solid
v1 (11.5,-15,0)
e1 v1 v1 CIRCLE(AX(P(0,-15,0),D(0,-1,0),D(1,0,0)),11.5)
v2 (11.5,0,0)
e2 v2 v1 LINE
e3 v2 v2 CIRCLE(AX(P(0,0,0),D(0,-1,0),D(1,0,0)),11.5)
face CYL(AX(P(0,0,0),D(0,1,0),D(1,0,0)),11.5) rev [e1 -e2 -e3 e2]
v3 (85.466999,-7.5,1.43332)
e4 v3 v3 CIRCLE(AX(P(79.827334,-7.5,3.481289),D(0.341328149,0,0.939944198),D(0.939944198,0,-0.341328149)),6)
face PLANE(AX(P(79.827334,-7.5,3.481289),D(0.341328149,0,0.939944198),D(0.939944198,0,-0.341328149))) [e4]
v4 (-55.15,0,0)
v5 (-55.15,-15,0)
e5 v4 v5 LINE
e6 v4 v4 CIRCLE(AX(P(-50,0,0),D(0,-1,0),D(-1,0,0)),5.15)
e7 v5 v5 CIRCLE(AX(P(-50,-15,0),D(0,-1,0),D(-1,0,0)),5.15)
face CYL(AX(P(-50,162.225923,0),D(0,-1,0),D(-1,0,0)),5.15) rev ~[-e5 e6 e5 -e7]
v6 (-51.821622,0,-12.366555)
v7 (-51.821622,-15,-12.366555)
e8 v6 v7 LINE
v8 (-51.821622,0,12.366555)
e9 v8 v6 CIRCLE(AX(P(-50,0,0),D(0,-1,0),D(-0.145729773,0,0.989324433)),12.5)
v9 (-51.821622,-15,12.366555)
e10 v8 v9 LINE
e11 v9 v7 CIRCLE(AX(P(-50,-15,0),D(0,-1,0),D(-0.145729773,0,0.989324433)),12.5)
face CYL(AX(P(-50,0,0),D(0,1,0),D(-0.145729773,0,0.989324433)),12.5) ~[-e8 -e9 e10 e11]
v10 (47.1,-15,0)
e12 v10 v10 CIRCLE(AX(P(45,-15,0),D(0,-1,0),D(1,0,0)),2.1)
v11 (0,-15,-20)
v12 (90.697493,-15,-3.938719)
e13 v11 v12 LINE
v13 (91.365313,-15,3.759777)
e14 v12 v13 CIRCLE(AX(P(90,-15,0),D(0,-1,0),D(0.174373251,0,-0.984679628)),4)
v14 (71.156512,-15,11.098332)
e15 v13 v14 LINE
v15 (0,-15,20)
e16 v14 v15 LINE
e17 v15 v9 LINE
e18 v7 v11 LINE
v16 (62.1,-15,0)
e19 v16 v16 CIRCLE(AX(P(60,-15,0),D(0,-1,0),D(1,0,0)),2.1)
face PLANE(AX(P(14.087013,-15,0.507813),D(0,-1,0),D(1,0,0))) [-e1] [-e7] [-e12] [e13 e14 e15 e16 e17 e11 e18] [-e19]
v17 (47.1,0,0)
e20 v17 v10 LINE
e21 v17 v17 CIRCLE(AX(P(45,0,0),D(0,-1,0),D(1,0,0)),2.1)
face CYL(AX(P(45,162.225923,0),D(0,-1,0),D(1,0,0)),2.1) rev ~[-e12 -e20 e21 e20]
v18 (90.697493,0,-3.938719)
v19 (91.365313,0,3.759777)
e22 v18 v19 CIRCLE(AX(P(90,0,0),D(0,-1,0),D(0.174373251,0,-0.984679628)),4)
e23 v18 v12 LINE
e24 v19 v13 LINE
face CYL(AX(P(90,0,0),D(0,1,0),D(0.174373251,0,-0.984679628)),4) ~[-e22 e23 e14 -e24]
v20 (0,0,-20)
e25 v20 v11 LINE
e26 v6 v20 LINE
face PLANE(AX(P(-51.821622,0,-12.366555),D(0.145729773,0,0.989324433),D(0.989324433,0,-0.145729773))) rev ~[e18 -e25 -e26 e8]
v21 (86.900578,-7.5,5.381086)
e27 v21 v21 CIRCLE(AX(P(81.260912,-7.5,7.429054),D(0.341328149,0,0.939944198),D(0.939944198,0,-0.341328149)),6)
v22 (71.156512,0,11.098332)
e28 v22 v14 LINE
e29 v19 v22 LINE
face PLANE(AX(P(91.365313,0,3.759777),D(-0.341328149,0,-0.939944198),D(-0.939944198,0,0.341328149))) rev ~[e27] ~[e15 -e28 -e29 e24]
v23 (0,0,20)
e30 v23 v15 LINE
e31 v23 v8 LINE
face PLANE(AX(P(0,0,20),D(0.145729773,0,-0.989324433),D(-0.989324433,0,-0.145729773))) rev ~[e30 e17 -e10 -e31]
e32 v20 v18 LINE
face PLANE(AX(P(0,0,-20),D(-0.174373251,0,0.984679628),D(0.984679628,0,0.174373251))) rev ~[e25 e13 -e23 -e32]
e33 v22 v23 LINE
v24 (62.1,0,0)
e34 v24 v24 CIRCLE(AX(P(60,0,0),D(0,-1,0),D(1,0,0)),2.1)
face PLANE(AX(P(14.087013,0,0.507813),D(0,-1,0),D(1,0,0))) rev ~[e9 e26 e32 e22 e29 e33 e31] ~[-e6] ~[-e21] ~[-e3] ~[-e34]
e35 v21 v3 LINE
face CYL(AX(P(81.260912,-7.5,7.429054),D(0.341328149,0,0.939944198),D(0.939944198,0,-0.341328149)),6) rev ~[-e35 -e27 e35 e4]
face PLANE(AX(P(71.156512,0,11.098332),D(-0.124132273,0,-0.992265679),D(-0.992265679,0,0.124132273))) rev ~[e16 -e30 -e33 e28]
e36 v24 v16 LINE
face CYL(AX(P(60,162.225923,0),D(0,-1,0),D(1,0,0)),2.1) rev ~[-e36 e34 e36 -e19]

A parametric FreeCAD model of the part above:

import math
import FreeCAD as App
import Part
import Sketcher

V = App.Vector

doc = App.newDocument("Part")
body = doc.addObject("PartDesign::Body", "Body")

# Sketch on XZ plane
sketch1 = body.newObject("Sketcher::SketchObject", "Sketch")
sketch1.AttachmentSupport = (doc.getObject("XZ_Plane"), [""])
sketch1.MapMode = "FlatFace"
sketch1.addGeometry([
    Part.LineSegment(V(71.2, 11.1, 0), V(0, 20, 0)),  # 0
    Part.LineSegment(V(0, 20, 0), V(-51.8, 12.4, 0)),  # 1
    Part.ArcOfCircle(Part.Circle(V(-50, 0, 0), V(0, 0, 1), 12.5), math.radians(98), math.radians(262)),  # 2
    Part.LineSegment(V(-51.8, -12.4, 0), V(0, -20, 0)),  # 3
    Part.LineSegment(V(0, -20, 0), V(90.7, -3.9, 0)),  # 4
    Part.ArcOfCircle(Part.Circle(V(90, 0, 0), V(0, 0, 1), 4), math.radians(-80), math.radians(70)),  # 5
    Part.LineSegment(V(91.4, 3.8, 0), V(71.2, 11.1, 0)),  # 6
    Part.Circle(V(0, 0, 0), V(0, 0, 1), 11.5),  # 7
], False)
sketch1.addConstraint([
    Sketcher.Constraint("Coincident", 0, 2, 1, 1),
    Sketcher.Constraint("Tangent", 1, 2, 2, 1),
    Sketcher.Constraint("Tangent", 2, 2, 3, 1),
    Sketcher.Constraint("Coincident", 3, 2, 4, 1),
    Sketcher.Constraint("Tangent", 4, 2, 5, 1),
    Sketcher.Constraint("Tangent", 5, 2, 6, 1),
    Sketcher.Constraint("Coincident", 6, 2, 0, 1),
    Sketcher.Constraint("Coincident", 7, 3, -1, 1),
    Sketcher.Constraint("Symmetric", 0, 2, 3, 2, -1, 1),
    Sketcher.Constraint("Symmetric", 1, 2, 2, 2, -1),
    Sketcher.Constraint("PointOnObject", 5, 3, -1),
    Sketcher.Constraint("Diameter", 7, 23.0),
    Sketcher.Constraint("Radius", 5, 4.0),
    Sketcher.Constraint("Radius", 2, 12.5),
    Sketcher.Constraint("DistanceX", 2, 3, -1, 1, 50.0),
    Sketcher.Constraint("DistanceX", -1, 1, 5, 3, 90.0),
    Sketcher.Constraint("DistanceY", -1, 1, 0, 2, 20.0),
    Sketcher.Constraint("Distance", 6, 21.5),
    Sketcher.Constraint("DistanceX", 6, 2, 5, 2, 20.2088),
])
pad1 = body.newObject("PartDesign::Pad", "Pad")
pad1.Profile = sketch1
pad1.Length = 15

# Sketch on XZ plane
sketch2 = body.newObject("Sketcher::SketchObject", "Sketch001")
sketch2.AttachmentSupport = (doc.getObject("XZ_Plane"), [""])
sketch2.MapMode = "FlatFace"
sketch2.addGeometry([
    Part.Circle(V(60, 0, 0), V(0, 0, 1), 2.1),
    Part.Circle(V(45, 0, 0), V(0, 0, 1), 2.1),
], False)
sketch2.addConstraint([
    Sketcher.Constraint("Equal", 0, 1),
    Sketcher.Constraint("PointOnObject", 0, 3, -1),
    Sketcher.Constraint("PointOnObject", 1, 3, -1),
    Sketcher.Constraint("Diameter", 0, 4.2),
    Sketcher.Constraint("DistanceX", -1, 1, 0, 3, 60.0),
    Sketcher.Constraint("DistanceX", -1, 1, 1, 3, 45.0),
])
doc.recompute()
hole = body.newObject("PartDesign::Hole", "Hole")
hole.Profile = sketch2
hole.ThreadType = "None"
hole.Diameter = 4.2
hole.DepthType = "ThroughAll"
hole.Reversed = True

# Sketch on XZ plane
sketch3 = body.newObject("Sketcher::SketchObject", "Sketch002")
sketch3.AttachmentSupport = (doc.getObject("XZ_Plane"), [""])
sketch3.MapMode = "FlatFace"
sketch3.addGeometry(Part.Circle(V(-50, 0, 0), V(0, 0, 1), 5), False)
sketch3.addConstraint([
    Sketcher.Constraint("PointOnObject", 0, 3, -1),
    Sketcher.Constraint("Diameter", 0, 10.3),
    Sketcher.Constraint("DistanceX", 0, 3, -1, 1, 50.0),
])
doc.recompute()
hole2 = body.newObject("PartDesign::Hole", "Hole001")
hole2.Profile = sketch3
hole2.ThreadType = "None"
hole2.Diameter = 10.3
hole2.DepthType = "ThroughAll"
hole2.Reversed = True

# Sketch on an angled plane
sketch4 = body.newObject("Sketcher::SketchObject", "Sketch003")
sketch4.Placement = App.Placement(V(11.850754, 0, 32.634424), App.Rotation(V(0.939944198, 0, -0.341328149), V(0, 1.000000001, 0), V(0.341328149, 0, 0.939944198), "ZXY"))
sketch4.addGeometry(Part.Circle(V(74, -8, 0), V(0, 0, 1), 6), False)
sketch4.addConstraint([
    Sketcher.Constraint("Diameter", 0, 12.0),
    Sketcher.Constraint("DistanceY", 0, 3, -1, 1, 7.5),
    Sketcher.Constraint("DistanceX", -1, 1, 0, 3, 73.844978),
])
pocket1 = body.newObject("PartDesign::Pocket", "Pocket")
pocket1.Profile = sketch4
pocket1.Length = 4.2

doc.recompute()
